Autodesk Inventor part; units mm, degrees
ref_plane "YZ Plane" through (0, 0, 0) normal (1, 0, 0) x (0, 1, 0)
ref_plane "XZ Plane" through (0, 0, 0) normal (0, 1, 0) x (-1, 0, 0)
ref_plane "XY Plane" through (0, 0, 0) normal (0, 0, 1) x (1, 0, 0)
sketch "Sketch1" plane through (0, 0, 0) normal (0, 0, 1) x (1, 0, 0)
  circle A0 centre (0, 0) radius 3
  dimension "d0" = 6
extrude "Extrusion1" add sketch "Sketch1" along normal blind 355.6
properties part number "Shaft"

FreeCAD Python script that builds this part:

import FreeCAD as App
import Part
import Sketcher
from FreeCAD import Vector
Q = App.Units.Quantity

doc = App.newDocument("Part")
params = doc.addObject("Spreadsheet::Sheet", "Params")
for row, (alias, value) in enumerate([
    ("sketch1_diameter", "6 mm"),
    ("pad1_length", "355.6 mm"),
], start=1):
    params.set(f"A{row}", alias)
    params.set(f"B{row}", "=" + value)
    params.setAlias(f"B{row}", alias)

body = doc.addObject("PartDesign::Body", "Body")

sketch1 = doc.addObject("Sketcher::SketchObject", "Sketch")
body.addObject(sketch1)
sketch1.AttachmentSupport = (doc.XY_Plane, [""])
sketch1.MapMode = "FlatFace"
sketch1.addGeometry(Part.Circle(Vector(0, 0, 0), Vector(0, 0, 1), 3), False)
sketch1.addConstraint([
    Sketcher.Constraint("Coincident", 0, 3, -1, 1),
    Sketcher.Constraint("Diameter", 0, Q("6 mm")),
])
sketch1.setExpression("Constraints[1]", "Params.sketch1_diameter")
pad1 = doc.addObject("PartDesign::Pad", "Pad")
body.addObject(pad1)
pad1.Profile = sketch1
pad1.setExpression("Length", "Params.pad1_length")

doc.recompute()
